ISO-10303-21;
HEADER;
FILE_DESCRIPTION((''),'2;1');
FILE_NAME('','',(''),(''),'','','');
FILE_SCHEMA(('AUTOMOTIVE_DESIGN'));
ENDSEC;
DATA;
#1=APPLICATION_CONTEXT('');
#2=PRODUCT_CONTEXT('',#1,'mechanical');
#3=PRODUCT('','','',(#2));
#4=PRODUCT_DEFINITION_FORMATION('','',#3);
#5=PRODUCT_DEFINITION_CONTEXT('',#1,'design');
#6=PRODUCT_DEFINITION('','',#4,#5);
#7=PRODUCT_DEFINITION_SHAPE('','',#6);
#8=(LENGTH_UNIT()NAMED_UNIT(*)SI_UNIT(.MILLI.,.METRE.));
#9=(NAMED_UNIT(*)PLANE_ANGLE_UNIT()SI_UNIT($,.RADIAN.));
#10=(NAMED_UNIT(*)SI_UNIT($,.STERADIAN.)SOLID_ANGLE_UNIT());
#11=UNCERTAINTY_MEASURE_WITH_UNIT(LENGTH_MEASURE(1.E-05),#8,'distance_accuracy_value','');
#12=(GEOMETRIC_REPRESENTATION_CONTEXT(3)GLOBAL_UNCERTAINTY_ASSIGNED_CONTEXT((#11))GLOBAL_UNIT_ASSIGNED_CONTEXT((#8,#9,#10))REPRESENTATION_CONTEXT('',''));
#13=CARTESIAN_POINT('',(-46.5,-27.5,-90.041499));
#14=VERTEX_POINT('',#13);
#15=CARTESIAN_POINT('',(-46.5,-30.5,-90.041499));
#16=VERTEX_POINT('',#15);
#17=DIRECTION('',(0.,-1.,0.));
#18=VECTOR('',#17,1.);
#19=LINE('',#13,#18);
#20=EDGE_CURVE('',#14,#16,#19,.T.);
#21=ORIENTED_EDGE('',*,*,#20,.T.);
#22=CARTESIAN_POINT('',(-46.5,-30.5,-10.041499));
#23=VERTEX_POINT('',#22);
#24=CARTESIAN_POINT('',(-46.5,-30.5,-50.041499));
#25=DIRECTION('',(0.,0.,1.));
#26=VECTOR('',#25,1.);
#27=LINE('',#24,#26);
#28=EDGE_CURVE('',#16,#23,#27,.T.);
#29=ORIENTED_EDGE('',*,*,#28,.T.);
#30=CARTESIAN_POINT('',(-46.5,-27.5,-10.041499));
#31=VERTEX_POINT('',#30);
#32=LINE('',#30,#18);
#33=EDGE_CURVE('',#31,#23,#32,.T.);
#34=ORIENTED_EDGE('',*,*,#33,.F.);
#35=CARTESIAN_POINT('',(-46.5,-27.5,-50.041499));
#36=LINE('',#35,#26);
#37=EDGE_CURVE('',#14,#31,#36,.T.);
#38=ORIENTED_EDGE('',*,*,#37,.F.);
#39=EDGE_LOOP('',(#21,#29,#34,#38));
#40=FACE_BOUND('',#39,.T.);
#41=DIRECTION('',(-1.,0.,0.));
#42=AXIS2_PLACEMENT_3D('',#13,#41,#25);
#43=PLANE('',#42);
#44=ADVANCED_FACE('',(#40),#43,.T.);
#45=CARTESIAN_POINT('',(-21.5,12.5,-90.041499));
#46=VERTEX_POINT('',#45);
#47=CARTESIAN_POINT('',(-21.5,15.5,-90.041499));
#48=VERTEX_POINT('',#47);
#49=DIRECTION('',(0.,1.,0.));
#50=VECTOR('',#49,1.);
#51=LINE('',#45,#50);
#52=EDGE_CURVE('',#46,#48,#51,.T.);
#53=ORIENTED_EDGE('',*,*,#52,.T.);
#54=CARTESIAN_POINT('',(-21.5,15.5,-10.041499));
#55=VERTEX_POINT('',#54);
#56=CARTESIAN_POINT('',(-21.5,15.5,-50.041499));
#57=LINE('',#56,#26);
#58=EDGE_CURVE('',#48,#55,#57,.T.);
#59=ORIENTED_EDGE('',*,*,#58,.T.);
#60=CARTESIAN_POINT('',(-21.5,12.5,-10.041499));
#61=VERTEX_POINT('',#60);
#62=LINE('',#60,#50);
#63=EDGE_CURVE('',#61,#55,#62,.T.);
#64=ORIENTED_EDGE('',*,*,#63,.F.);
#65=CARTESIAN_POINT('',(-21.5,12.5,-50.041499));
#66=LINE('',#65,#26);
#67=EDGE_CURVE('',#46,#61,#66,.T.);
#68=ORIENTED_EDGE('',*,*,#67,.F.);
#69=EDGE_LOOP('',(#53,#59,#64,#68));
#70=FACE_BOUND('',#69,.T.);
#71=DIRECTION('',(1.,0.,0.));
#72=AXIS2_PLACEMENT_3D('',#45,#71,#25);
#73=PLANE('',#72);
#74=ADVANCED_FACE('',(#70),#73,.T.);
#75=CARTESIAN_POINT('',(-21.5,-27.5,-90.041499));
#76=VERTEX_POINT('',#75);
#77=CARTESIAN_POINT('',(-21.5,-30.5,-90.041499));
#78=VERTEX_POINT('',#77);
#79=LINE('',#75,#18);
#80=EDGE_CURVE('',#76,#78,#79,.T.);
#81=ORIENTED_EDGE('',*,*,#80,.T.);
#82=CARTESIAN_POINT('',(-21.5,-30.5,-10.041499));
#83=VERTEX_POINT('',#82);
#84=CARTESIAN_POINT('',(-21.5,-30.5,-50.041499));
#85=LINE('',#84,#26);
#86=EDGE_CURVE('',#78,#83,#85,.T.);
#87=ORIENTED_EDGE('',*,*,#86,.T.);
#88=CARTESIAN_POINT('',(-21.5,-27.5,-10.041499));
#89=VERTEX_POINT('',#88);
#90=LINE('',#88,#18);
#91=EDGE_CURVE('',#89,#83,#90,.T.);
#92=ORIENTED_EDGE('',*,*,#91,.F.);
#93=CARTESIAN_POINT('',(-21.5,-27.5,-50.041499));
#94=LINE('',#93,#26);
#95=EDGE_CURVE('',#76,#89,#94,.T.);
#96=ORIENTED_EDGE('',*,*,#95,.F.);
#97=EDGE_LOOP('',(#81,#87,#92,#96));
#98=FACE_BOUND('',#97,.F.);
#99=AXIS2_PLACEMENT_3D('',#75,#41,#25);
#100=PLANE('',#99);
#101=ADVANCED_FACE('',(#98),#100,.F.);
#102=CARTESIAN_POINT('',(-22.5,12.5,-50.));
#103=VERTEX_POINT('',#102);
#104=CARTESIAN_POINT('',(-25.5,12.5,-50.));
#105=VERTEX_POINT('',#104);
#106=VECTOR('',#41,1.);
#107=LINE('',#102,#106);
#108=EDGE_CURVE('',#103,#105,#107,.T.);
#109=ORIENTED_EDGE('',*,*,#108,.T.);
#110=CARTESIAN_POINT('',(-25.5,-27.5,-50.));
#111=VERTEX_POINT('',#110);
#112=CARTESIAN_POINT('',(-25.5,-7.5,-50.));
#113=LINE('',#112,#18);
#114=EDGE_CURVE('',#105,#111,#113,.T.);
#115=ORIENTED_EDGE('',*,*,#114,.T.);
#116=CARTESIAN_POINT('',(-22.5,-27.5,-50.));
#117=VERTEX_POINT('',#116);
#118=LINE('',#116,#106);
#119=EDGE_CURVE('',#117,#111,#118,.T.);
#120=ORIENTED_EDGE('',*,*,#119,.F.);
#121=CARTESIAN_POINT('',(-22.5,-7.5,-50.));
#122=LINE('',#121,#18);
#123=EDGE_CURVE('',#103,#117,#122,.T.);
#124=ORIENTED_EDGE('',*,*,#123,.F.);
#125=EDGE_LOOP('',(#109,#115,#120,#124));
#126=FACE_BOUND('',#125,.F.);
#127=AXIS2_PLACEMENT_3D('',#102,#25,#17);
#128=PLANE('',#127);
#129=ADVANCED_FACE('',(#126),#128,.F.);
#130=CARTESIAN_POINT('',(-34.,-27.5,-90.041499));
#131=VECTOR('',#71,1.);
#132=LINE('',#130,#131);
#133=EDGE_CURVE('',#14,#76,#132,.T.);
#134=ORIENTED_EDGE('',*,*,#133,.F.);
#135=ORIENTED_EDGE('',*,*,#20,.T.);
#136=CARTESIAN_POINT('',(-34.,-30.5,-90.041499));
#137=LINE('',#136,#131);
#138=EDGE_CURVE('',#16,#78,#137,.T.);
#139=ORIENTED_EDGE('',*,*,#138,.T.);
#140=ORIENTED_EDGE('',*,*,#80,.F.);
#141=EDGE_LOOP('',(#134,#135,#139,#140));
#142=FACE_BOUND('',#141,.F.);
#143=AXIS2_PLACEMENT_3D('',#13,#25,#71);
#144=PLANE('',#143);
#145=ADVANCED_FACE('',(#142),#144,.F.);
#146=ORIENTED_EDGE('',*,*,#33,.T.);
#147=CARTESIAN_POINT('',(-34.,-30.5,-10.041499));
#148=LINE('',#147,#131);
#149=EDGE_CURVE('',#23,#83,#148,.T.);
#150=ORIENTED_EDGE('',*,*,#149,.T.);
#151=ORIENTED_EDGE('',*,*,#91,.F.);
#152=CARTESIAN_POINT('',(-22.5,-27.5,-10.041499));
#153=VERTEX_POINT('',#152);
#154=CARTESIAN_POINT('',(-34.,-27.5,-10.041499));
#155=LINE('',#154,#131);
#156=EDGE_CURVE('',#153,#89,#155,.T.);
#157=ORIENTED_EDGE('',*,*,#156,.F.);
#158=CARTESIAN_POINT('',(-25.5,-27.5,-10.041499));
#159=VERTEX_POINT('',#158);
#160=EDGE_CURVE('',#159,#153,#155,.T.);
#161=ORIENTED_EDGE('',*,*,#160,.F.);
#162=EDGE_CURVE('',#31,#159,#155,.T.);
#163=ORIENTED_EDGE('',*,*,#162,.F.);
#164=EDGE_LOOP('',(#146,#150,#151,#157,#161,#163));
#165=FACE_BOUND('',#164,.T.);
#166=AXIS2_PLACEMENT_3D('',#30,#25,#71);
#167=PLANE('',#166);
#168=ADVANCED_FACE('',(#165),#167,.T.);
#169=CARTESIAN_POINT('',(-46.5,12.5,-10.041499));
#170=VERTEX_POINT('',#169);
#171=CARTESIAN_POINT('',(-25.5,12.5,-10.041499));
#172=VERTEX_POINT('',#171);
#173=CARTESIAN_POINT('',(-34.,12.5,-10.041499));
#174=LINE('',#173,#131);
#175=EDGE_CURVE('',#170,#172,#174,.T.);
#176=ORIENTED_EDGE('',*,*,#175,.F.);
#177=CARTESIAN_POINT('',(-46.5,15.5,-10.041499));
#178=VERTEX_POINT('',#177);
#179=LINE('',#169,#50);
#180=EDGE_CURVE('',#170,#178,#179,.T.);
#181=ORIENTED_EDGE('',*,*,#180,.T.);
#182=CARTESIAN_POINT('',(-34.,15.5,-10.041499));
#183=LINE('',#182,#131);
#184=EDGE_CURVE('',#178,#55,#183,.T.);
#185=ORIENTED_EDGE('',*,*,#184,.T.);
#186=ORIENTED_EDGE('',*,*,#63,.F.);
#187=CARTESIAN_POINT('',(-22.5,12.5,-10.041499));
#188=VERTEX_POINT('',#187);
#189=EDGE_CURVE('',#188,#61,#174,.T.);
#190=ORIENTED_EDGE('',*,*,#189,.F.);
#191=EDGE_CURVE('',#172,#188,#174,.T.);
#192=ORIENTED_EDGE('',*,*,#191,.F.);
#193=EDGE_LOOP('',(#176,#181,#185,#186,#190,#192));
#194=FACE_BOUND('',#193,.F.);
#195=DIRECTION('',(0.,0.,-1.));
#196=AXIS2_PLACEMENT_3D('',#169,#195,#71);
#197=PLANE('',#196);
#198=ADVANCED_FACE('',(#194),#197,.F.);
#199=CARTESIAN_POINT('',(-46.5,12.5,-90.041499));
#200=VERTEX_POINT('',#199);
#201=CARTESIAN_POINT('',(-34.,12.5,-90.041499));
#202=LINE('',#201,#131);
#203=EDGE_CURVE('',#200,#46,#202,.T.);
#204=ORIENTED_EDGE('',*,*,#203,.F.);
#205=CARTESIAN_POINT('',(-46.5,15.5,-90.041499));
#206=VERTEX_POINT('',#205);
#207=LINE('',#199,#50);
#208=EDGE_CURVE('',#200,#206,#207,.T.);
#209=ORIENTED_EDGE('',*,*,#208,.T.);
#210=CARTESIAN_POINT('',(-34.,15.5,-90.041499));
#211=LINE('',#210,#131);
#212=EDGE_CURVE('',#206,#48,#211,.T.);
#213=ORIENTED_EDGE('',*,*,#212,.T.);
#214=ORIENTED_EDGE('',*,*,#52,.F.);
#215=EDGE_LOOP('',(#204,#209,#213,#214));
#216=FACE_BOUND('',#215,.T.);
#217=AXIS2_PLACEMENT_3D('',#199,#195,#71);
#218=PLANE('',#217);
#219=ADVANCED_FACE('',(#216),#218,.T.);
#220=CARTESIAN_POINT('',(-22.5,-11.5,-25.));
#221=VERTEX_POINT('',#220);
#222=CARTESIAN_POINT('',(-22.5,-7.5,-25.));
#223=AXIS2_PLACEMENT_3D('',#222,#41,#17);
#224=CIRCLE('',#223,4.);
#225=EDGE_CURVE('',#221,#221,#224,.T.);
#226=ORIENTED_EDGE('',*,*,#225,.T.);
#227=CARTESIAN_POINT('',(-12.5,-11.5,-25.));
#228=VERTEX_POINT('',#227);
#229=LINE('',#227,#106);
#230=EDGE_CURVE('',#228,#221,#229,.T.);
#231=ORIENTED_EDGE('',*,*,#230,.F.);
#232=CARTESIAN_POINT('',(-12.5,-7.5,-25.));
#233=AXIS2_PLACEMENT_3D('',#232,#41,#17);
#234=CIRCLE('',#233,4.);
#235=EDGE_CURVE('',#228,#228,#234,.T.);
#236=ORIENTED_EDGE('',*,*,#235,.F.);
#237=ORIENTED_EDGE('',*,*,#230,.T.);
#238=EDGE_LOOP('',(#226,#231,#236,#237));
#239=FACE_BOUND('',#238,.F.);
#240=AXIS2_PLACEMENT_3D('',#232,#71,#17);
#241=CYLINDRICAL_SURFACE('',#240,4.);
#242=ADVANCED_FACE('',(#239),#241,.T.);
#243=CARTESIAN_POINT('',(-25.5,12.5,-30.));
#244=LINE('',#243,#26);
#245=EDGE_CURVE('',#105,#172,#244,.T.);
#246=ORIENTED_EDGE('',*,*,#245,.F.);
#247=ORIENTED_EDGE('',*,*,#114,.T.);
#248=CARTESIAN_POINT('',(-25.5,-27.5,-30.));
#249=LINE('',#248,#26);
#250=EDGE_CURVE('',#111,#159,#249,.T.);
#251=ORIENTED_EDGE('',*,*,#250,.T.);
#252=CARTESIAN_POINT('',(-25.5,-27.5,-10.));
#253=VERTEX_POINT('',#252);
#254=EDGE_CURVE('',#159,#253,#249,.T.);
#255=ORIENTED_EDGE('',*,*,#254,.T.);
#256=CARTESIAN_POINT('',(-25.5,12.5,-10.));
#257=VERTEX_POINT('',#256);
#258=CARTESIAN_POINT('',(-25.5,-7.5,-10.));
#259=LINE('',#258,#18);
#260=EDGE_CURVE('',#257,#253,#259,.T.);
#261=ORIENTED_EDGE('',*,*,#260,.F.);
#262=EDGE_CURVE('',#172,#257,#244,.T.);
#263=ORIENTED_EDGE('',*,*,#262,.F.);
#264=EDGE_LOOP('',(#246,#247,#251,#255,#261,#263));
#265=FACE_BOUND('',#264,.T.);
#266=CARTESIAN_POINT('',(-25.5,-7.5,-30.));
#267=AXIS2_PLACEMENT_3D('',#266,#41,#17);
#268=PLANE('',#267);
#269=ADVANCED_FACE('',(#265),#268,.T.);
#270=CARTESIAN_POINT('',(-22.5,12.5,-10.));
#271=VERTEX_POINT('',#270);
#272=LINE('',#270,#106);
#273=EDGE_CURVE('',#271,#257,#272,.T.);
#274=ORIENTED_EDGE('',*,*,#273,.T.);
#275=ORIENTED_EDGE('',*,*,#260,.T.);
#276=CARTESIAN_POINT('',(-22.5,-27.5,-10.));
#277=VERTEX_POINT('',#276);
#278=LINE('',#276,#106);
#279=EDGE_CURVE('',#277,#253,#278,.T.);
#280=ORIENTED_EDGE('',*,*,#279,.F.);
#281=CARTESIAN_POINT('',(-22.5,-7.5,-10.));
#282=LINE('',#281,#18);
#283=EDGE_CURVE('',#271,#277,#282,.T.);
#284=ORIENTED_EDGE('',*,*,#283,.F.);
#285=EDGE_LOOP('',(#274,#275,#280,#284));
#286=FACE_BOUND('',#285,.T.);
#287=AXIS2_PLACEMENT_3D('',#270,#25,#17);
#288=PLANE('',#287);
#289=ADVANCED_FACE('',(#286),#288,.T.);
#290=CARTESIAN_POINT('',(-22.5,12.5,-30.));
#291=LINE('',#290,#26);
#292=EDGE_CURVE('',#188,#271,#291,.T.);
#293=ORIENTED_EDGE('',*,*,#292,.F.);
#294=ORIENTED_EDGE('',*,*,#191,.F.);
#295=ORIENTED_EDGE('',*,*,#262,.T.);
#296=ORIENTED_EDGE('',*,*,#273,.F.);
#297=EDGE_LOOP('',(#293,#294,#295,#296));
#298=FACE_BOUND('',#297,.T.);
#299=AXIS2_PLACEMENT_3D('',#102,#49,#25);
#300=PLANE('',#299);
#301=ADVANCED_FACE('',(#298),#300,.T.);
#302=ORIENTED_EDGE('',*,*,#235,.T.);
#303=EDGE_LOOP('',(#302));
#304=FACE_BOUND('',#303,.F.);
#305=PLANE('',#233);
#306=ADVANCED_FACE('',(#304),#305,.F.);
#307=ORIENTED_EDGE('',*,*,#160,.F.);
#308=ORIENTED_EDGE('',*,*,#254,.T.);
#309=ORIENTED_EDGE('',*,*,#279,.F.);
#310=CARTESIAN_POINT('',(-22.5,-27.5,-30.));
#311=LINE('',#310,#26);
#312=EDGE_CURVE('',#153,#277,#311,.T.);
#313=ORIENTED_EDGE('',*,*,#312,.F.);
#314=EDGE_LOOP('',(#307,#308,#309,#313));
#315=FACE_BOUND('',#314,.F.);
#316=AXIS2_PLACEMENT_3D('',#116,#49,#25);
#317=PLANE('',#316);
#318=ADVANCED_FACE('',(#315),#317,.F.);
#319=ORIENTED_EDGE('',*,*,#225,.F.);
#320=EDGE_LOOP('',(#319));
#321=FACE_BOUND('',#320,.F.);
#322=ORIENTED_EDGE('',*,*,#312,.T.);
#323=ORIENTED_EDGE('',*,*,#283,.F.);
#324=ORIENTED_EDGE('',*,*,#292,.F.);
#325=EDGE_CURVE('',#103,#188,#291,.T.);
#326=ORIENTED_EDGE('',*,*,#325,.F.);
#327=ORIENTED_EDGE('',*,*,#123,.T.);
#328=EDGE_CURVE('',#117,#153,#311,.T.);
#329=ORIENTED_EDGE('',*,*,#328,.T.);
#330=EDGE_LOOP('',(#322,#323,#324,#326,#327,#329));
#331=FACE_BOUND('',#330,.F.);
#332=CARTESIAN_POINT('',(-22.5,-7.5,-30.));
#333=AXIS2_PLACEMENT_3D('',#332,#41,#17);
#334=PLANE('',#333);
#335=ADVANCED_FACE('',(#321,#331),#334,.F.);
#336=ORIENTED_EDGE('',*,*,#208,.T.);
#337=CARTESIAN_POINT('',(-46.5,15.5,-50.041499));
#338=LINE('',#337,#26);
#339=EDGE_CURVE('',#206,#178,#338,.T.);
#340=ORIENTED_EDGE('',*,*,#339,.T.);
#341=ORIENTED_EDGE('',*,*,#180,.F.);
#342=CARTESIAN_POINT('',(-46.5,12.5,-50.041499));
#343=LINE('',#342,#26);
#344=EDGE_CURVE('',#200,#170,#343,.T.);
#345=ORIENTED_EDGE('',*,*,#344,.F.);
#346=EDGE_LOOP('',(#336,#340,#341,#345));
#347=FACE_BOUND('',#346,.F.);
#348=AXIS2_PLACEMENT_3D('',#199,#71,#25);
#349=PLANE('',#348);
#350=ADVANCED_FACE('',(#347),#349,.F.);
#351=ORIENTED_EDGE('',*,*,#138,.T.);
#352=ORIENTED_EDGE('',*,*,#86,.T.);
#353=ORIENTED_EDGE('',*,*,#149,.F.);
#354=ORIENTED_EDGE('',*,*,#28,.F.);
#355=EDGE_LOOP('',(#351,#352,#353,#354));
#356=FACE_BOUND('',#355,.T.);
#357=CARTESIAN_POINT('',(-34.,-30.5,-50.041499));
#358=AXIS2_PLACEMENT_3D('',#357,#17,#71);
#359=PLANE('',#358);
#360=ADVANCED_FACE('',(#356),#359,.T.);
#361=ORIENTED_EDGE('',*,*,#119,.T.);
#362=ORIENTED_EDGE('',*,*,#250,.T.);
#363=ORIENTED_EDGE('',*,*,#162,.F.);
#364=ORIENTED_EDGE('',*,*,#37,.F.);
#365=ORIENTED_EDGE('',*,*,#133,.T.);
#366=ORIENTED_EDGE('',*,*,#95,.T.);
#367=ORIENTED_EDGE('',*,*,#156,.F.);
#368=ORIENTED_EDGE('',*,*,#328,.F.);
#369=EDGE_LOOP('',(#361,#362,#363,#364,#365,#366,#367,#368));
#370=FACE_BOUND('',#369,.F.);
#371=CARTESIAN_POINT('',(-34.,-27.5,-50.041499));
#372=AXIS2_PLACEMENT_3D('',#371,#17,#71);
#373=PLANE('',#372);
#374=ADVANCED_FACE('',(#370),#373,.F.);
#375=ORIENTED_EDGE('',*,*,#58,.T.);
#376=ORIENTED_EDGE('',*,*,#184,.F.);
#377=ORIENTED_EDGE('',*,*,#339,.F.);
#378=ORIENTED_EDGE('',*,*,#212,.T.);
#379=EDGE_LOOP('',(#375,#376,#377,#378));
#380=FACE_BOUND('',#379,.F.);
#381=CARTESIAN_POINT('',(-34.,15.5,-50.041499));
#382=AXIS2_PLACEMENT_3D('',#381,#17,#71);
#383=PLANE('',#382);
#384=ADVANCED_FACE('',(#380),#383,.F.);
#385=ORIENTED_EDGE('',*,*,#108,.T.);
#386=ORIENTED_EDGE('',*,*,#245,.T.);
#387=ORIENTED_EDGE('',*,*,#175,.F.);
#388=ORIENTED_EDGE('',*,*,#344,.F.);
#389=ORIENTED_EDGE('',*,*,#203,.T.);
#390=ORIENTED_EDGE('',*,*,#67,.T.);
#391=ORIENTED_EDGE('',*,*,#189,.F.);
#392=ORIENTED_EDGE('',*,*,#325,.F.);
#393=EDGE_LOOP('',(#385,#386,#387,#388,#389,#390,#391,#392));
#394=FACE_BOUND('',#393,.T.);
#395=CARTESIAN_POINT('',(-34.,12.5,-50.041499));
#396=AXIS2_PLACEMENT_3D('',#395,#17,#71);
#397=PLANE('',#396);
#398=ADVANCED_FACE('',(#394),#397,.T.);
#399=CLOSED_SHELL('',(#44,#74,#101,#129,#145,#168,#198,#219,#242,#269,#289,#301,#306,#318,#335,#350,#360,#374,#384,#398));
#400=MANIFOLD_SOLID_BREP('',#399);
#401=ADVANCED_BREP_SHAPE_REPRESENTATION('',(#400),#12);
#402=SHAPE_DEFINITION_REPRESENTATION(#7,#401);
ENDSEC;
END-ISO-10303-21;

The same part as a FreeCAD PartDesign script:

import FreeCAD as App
import Part
import Sketcher
from FreeCAD import Vector
Q = App.Units.Quantity

doc = App.newDocument("Part")
body = doc.addObject("PartDesign::Body", "Body")

sketch1 = body.newObject("Sketcher::SketchObject", "Sketch")
sketch1.AttachmentSupport = (doc.getObject("XZ_Plane"), [""])
sketch1.MapMode = "FlatFace"
sketch1.AttachmentOffset = App.Placement(Vector(0, 0, -12.5), App.Rotation())
sketch1.addGeometry(Part.LineSegment(Vector(-46, -10, 0), Vector(-46, -90, 0)), False)
sketch1.addGeometry(Part.LineSegment(Vector(-46, -90, 0), Vector(-22, -90, 0)), False)
sketch1.addGeometry(Part.LineSegment(Vector(-22, -90, 0), Vector(-22, -10, 0)), False)
sketch1.addGeometry(Part.LineSegment(Vector(-22, -10, 0), Vector(-46, -10, 0)), False)
sketch1.addConstraint(Sketcher.Constraint("Coincident", 0, 2, 1, 1))
sketch1.addConstraint(Sketcher.Constraint("Coincident", 1, 2, 2, 1))
sketch1.addConstraint(Sketcher.Constraint("Coincident", 2, 2, 3, 1))
sketch1.addConstraint(Sketcher.Constraint("Coincident", 3, 2, 0, 1))
sketch1.addConstraint(Sketcher.Constraint("Vertical", 0))
sketch1.addConstraint(Sketcher.Constraint("Horizontal", 1))
sketch1.addConstraint(Sketcher.Constraint("Vertical", 2))
sketch1.addConstraint(Sketcher.Constraint("Horizontal", 3))
sketch1.addConstraint(Sketcher.Constraint("DistanceX", 1, 1, 1, 2, Q("25 mm")))
sketch1.addConstraint(Sketcher.Constraint("DistanceY", 0, 2, 0, 1, Q("80 mm")))
sketch1.addConstraint(Sketcher.Constraint("DistanceX", 0, 2, -1, 1, Q("46.5 mm")))
sketch1.addConstraint(Sketcher.Constraint("DistanceY", 0, 2, -1, 1, Q("90.041499 mm")))
pad1 = body.newObject("PartDesign::Pad", "Pad")
pad1.Profile = sketch1
pad1.Length = 3
pad1.Reversed = True
body2 = doc.addObject("PartDesign::Body", "Body001")

sketch2 = body2.newObject("Sketcher::SketchObject", "Sketch001")
sketch2.AttachmentSupport = (doc.getObject("YZ_Plane001"), [""])
sketch2.MapMode = "FlatFace"
sketch2.AttachmentOffset = App.Placement(Vector(0, 0, -12.5), App.Rotation())
sketch2.addGeometry(Part.Circle(Vector(-7.5, -25, 0), Vector(0, 0, 1), 4), False)
sketch2.addConstraint(Sketcher.Constraint("Diameter", 0, Q("8 mm")))
sketch2.addConstraint(Sketcher.Constraint("DistanceY", 0, 3, -1, 1, Q("25 mm")))
sketch2.addConstraint(Sketcher.Constraint("DistanceX", 0, 3, -1, 1, Q("7.5 mm")))
pad2 = body2.newObject("PartDesign::Pad", "Pad001")
pad2.Profile = sketch2
pad2.Length = 10
pad2.Reversed = True
body3 = doc.addObject("PartDesign::Body", "Body002")

sketch3 = body3.newObject("Sketcher::SketchObject", "Sketch002")
sketch3.AttachmentSupport = (doc.getObject("YZ_Plane002"), [""])
sketch3.MapMode = "FlatFace"
sketch3.AttachmentOffset = App.Placement(Vector(0, 0, -22.5), App.Rotation())
sketch3.addGeometry(Part.LineSegment(Vector(12, -10, 0), Vector(12, -50, 0)), False)
sketch3.addGeometry(Part.LineSegment(Vector(12, -50, 0), Vector(-28, -50, 0)), False)
sketch3.addGeometry(Part.LineSegment(Vector(-28, -50, 0), Vector(-28, -10, 0)), False)
sketch3.addGeometry(Part.LineSegment(Vector(-28, -10, 0), Vector(12, -10, 0)), False)
sketch3.addConstraint(Sketcher.Constraint("Coincident", 0, 2, 1, 1))
sketch3.addConstraint(Sketcher.Constraint("Coincident", 1, 2, 2, 1))
sketch3.addConstraint(Sketcher.Constraint("Coincident", 2, 2, 3, 1))
sketch3.addConstraint(Sketcher.Constraint("Coincident", 3, 2, 0, 1))
sketch3.addConstraint(Sketcher.Constraint("Vertical", 0))
sketch3.addConstraint(Sketcher.Constraint("Horizontal", 1))
sketch3.addConstraint(Sketcher.Constraint("Vertical", 2))
sketch3.addConstraint(Sketcher.Constraint("Horizontal", 3))
sketch3.addConstraint(Sketcher.Constraint("Equal", 3, 0))
sketch3.addConstraint(Sketcher.Constraint("DistanceX", 1, 2, 1, 1, Q("40 mm")))
sketch3.addConstraint(Sketcher.Constraint("DistanceY", 0, 2, -1, 1, Q("50 mm")))
sketch3.addConstraint(Sketcher.Constraint("DistanceX", -1, 1, 0, 2, Q("12.5 mm")))
pad3 = body3.newObject("PartDesign::Pad", "Pad002")
pad3.Profile = sketch3
pad3.Length = 3
pad3.Reversed = True
body4 = doc.addObject("PartDesign::Body", "Body003")
body4.AllowCompound = True

sketch4 = body4.newObject("Sketcher::SketchObject", "Sketch003")
sketch4.AttachmentSupport = (doc.getObject("XZ_Plane003"), [""])
sketch4.MapMode = "FlatFace"
sketch4.AttachmentOffset = App.Placement(Vector(0, 0, 27.5), App.Rotation())
sketch4.addGeometry(Part.LineSegment(Vector(-46, -10, 0), Vector(-46, -90, 0)), False)
sketch4.addGeometry(Part.LineSegment(Vector(-46, -90, 0), Vector(-22, -90, 0)), False)
sketch4.addGeometry(Part.LineSegment(Vector(-22, -90, 0), Vector(-22, -10, 0)), False)
sketch4.addGeometry(Part.LineSegment(Vector(-22, -10, 0), Vector(-46, -10, 0)), False)
sketch4.addConstraint(Sketcher.Constraint("Coincident", 0, 2, 1, 1))
sketch4.addConstraint(Sketcher.Constraint("Coincident", 1, 2, 2, 1))
sketch4.addConstraint(Sketcher.Constraint("Coincident", 2, 2, 3, 1))
sketch4.addConstraint(Sketcher.Constraint("Coincident", 3, 2, 0, 1))
sketch4.addConstraint(Sketcher.Constraint("Vertical", 0))
sketch4.addConstraint(Sketcher.Constraint("Horizontal", 1))
sketch4.addConstraint(Sketcher.Constraint("Vertical", 2))
sketch4.addConstraint(Sketcher.Constraint("Horizontal", 3))
sketch4.addConstraint(Sketcher.Constraint("DistanceX", 1, 1, 1, 2, Q("25 mm")))
sketch4.addConstraint(Sketcher.Constraint("DistanceY", 0, 2, 0, 1, Q("80 mm")))
sketch4.addConstraint(Sketcher.Constraint("DistanceX", 0, 2, -1, 1, Q("46.5 mm")))
sketch4.addConstraint(Sketcher.Constraint("DistanceY", 0, 2, -1, 1, Q("90.041499 mm")))
pad4 = body4.newObject("PartDesign::Pad", "Pad003")
pad4.Profile = sketch4
pad4.Length = 3
doc.recompute()

boolean = body4.newObject("PartDesign::Boolean", "Boolean")
boolean.Type = "Fuse"
boolean.addObjects([body])
doc.recompute()

boolean2 = body4.newObject("PartDesign::Boolean", "Boolean001")
boolean2.Type = "Fuse"
boolean2.addObjects([body2])
doc.recompute()

boolean3 = body4.newObject("PartDesign::Boolean", "Boolean002")
boolean3.Type = "Fuse"
boolean3.addObjects([body3])

doc.recompute()
